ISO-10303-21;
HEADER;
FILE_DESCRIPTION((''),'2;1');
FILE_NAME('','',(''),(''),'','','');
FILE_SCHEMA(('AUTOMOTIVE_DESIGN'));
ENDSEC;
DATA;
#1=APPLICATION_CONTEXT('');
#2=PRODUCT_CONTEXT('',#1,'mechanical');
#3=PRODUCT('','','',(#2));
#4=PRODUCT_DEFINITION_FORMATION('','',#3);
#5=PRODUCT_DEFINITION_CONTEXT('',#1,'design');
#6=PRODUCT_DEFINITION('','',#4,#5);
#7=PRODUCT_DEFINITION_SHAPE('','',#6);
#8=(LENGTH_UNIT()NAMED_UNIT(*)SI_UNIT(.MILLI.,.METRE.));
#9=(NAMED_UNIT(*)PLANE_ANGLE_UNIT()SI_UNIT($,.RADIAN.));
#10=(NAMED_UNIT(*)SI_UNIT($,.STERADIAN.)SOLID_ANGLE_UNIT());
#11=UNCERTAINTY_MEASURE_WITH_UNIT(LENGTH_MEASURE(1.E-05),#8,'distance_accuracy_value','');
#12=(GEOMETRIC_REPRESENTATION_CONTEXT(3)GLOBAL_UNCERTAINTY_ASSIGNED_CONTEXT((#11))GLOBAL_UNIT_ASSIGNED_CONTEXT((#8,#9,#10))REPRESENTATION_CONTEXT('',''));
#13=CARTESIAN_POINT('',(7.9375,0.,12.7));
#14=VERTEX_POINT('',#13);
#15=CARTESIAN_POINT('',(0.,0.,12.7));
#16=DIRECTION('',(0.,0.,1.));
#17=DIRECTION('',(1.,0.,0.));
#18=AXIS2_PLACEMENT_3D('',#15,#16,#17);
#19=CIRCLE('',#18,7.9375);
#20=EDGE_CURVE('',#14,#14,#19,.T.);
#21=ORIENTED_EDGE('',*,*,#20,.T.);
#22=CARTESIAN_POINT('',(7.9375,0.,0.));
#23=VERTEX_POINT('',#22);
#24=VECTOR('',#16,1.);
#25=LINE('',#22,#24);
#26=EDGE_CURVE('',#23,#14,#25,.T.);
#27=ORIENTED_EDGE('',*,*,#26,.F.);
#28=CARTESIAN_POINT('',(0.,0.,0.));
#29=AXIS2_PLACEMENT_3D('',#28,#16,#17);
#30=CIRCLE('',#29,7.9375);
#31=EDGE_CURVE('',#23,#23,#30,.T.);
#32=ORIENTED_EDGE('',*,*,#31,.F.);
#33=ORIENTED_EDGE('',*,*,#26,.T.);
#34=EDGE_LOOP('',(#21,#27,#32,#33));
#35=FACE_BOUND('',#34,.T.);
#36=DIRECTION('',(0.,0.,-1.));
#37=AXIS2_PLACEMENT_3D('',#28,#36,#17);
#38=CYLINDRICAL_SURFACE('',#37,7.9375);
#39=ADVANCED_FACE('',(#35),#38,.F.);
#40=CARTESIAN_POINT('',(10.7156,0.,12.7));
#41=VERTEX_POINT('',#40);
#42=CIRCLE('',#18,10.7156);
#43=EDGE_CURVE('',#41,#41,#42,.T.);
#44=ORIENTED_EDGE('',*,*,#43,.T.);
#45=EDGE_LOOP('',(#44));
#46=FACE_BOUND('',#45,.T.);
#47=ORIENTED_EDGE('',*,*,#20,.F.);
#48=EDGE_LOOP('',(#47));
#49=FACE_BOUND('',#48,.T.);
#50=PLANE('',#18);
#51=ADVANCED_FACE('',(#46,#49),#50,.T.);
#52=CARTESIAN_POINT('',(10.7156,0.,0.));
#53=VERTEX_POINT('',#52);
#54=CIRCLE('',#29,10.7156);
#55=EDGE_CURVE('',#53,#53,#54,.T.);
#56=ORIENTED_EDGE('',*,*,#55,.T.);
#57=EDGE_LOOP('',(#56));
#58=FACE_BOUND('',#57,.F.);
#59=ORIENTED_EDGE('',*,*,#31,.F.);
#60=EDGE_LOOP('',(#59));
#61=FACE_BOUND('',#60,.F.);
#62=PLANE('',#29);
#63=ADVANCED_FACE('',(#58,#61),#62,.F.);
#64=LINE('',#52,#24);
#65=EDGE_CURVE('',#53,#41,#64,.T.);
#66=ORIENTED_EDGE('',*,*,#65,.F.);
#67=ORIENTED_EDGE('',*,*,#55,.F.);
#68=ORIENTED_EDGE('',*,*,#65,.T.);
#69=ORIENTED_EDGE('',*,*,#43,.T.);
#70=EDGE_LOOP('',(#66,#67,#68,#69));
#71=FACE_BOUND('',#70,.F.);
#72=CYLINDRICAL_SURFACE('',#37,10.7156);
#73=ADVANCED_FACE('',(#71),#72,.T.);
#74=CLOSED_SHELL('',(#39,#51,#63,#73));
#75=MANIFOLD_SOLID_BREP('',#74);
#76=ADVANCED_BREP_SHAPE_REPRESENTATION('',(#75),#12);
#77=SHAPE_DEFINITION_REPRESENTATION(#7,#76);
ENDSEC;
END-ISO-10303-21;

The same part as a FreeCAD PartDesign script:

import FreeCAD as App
import Part
import Sketcher

V = App.Vector
Q = App.Units.Quantity

doc = App.newDocument("Part")
body = doc.addObject("PartDesign::Body", "Body")

sketch1 = body.newObject("Sketcher::SketchObject", "Sketch")
sketch1.AttachmentSupport = (doc.getObject("XY_Plane"), [""])
sketch1.MapMode = "FlatFace"
sketch1.addGeometry([
    Part.Circle(V(0, 0, 0), V(0, 0, 1), 11),
    Part.Circle(V(0, 0, 0), V(0, 0, 1), 8),
], False)
sketch1.addConstraint([
    Sketcher.Constraint("Coincident", 0, 3, -1, 1),
    Sketcher.Constraint("Coincident", 1, 3, -1, 1),
    Sketcher.Constraint("Diameter", 0, Q("0.843748 in")),
    Sketcher.Constraint("Diameter", 1, Q("0.625 in")),
])
pad1 = body.newObject("PartDesign::Pad", "Pad")
pad1.Profile = sketch1
pad1.Length = Q("0.5 in")

doc.recompute()
